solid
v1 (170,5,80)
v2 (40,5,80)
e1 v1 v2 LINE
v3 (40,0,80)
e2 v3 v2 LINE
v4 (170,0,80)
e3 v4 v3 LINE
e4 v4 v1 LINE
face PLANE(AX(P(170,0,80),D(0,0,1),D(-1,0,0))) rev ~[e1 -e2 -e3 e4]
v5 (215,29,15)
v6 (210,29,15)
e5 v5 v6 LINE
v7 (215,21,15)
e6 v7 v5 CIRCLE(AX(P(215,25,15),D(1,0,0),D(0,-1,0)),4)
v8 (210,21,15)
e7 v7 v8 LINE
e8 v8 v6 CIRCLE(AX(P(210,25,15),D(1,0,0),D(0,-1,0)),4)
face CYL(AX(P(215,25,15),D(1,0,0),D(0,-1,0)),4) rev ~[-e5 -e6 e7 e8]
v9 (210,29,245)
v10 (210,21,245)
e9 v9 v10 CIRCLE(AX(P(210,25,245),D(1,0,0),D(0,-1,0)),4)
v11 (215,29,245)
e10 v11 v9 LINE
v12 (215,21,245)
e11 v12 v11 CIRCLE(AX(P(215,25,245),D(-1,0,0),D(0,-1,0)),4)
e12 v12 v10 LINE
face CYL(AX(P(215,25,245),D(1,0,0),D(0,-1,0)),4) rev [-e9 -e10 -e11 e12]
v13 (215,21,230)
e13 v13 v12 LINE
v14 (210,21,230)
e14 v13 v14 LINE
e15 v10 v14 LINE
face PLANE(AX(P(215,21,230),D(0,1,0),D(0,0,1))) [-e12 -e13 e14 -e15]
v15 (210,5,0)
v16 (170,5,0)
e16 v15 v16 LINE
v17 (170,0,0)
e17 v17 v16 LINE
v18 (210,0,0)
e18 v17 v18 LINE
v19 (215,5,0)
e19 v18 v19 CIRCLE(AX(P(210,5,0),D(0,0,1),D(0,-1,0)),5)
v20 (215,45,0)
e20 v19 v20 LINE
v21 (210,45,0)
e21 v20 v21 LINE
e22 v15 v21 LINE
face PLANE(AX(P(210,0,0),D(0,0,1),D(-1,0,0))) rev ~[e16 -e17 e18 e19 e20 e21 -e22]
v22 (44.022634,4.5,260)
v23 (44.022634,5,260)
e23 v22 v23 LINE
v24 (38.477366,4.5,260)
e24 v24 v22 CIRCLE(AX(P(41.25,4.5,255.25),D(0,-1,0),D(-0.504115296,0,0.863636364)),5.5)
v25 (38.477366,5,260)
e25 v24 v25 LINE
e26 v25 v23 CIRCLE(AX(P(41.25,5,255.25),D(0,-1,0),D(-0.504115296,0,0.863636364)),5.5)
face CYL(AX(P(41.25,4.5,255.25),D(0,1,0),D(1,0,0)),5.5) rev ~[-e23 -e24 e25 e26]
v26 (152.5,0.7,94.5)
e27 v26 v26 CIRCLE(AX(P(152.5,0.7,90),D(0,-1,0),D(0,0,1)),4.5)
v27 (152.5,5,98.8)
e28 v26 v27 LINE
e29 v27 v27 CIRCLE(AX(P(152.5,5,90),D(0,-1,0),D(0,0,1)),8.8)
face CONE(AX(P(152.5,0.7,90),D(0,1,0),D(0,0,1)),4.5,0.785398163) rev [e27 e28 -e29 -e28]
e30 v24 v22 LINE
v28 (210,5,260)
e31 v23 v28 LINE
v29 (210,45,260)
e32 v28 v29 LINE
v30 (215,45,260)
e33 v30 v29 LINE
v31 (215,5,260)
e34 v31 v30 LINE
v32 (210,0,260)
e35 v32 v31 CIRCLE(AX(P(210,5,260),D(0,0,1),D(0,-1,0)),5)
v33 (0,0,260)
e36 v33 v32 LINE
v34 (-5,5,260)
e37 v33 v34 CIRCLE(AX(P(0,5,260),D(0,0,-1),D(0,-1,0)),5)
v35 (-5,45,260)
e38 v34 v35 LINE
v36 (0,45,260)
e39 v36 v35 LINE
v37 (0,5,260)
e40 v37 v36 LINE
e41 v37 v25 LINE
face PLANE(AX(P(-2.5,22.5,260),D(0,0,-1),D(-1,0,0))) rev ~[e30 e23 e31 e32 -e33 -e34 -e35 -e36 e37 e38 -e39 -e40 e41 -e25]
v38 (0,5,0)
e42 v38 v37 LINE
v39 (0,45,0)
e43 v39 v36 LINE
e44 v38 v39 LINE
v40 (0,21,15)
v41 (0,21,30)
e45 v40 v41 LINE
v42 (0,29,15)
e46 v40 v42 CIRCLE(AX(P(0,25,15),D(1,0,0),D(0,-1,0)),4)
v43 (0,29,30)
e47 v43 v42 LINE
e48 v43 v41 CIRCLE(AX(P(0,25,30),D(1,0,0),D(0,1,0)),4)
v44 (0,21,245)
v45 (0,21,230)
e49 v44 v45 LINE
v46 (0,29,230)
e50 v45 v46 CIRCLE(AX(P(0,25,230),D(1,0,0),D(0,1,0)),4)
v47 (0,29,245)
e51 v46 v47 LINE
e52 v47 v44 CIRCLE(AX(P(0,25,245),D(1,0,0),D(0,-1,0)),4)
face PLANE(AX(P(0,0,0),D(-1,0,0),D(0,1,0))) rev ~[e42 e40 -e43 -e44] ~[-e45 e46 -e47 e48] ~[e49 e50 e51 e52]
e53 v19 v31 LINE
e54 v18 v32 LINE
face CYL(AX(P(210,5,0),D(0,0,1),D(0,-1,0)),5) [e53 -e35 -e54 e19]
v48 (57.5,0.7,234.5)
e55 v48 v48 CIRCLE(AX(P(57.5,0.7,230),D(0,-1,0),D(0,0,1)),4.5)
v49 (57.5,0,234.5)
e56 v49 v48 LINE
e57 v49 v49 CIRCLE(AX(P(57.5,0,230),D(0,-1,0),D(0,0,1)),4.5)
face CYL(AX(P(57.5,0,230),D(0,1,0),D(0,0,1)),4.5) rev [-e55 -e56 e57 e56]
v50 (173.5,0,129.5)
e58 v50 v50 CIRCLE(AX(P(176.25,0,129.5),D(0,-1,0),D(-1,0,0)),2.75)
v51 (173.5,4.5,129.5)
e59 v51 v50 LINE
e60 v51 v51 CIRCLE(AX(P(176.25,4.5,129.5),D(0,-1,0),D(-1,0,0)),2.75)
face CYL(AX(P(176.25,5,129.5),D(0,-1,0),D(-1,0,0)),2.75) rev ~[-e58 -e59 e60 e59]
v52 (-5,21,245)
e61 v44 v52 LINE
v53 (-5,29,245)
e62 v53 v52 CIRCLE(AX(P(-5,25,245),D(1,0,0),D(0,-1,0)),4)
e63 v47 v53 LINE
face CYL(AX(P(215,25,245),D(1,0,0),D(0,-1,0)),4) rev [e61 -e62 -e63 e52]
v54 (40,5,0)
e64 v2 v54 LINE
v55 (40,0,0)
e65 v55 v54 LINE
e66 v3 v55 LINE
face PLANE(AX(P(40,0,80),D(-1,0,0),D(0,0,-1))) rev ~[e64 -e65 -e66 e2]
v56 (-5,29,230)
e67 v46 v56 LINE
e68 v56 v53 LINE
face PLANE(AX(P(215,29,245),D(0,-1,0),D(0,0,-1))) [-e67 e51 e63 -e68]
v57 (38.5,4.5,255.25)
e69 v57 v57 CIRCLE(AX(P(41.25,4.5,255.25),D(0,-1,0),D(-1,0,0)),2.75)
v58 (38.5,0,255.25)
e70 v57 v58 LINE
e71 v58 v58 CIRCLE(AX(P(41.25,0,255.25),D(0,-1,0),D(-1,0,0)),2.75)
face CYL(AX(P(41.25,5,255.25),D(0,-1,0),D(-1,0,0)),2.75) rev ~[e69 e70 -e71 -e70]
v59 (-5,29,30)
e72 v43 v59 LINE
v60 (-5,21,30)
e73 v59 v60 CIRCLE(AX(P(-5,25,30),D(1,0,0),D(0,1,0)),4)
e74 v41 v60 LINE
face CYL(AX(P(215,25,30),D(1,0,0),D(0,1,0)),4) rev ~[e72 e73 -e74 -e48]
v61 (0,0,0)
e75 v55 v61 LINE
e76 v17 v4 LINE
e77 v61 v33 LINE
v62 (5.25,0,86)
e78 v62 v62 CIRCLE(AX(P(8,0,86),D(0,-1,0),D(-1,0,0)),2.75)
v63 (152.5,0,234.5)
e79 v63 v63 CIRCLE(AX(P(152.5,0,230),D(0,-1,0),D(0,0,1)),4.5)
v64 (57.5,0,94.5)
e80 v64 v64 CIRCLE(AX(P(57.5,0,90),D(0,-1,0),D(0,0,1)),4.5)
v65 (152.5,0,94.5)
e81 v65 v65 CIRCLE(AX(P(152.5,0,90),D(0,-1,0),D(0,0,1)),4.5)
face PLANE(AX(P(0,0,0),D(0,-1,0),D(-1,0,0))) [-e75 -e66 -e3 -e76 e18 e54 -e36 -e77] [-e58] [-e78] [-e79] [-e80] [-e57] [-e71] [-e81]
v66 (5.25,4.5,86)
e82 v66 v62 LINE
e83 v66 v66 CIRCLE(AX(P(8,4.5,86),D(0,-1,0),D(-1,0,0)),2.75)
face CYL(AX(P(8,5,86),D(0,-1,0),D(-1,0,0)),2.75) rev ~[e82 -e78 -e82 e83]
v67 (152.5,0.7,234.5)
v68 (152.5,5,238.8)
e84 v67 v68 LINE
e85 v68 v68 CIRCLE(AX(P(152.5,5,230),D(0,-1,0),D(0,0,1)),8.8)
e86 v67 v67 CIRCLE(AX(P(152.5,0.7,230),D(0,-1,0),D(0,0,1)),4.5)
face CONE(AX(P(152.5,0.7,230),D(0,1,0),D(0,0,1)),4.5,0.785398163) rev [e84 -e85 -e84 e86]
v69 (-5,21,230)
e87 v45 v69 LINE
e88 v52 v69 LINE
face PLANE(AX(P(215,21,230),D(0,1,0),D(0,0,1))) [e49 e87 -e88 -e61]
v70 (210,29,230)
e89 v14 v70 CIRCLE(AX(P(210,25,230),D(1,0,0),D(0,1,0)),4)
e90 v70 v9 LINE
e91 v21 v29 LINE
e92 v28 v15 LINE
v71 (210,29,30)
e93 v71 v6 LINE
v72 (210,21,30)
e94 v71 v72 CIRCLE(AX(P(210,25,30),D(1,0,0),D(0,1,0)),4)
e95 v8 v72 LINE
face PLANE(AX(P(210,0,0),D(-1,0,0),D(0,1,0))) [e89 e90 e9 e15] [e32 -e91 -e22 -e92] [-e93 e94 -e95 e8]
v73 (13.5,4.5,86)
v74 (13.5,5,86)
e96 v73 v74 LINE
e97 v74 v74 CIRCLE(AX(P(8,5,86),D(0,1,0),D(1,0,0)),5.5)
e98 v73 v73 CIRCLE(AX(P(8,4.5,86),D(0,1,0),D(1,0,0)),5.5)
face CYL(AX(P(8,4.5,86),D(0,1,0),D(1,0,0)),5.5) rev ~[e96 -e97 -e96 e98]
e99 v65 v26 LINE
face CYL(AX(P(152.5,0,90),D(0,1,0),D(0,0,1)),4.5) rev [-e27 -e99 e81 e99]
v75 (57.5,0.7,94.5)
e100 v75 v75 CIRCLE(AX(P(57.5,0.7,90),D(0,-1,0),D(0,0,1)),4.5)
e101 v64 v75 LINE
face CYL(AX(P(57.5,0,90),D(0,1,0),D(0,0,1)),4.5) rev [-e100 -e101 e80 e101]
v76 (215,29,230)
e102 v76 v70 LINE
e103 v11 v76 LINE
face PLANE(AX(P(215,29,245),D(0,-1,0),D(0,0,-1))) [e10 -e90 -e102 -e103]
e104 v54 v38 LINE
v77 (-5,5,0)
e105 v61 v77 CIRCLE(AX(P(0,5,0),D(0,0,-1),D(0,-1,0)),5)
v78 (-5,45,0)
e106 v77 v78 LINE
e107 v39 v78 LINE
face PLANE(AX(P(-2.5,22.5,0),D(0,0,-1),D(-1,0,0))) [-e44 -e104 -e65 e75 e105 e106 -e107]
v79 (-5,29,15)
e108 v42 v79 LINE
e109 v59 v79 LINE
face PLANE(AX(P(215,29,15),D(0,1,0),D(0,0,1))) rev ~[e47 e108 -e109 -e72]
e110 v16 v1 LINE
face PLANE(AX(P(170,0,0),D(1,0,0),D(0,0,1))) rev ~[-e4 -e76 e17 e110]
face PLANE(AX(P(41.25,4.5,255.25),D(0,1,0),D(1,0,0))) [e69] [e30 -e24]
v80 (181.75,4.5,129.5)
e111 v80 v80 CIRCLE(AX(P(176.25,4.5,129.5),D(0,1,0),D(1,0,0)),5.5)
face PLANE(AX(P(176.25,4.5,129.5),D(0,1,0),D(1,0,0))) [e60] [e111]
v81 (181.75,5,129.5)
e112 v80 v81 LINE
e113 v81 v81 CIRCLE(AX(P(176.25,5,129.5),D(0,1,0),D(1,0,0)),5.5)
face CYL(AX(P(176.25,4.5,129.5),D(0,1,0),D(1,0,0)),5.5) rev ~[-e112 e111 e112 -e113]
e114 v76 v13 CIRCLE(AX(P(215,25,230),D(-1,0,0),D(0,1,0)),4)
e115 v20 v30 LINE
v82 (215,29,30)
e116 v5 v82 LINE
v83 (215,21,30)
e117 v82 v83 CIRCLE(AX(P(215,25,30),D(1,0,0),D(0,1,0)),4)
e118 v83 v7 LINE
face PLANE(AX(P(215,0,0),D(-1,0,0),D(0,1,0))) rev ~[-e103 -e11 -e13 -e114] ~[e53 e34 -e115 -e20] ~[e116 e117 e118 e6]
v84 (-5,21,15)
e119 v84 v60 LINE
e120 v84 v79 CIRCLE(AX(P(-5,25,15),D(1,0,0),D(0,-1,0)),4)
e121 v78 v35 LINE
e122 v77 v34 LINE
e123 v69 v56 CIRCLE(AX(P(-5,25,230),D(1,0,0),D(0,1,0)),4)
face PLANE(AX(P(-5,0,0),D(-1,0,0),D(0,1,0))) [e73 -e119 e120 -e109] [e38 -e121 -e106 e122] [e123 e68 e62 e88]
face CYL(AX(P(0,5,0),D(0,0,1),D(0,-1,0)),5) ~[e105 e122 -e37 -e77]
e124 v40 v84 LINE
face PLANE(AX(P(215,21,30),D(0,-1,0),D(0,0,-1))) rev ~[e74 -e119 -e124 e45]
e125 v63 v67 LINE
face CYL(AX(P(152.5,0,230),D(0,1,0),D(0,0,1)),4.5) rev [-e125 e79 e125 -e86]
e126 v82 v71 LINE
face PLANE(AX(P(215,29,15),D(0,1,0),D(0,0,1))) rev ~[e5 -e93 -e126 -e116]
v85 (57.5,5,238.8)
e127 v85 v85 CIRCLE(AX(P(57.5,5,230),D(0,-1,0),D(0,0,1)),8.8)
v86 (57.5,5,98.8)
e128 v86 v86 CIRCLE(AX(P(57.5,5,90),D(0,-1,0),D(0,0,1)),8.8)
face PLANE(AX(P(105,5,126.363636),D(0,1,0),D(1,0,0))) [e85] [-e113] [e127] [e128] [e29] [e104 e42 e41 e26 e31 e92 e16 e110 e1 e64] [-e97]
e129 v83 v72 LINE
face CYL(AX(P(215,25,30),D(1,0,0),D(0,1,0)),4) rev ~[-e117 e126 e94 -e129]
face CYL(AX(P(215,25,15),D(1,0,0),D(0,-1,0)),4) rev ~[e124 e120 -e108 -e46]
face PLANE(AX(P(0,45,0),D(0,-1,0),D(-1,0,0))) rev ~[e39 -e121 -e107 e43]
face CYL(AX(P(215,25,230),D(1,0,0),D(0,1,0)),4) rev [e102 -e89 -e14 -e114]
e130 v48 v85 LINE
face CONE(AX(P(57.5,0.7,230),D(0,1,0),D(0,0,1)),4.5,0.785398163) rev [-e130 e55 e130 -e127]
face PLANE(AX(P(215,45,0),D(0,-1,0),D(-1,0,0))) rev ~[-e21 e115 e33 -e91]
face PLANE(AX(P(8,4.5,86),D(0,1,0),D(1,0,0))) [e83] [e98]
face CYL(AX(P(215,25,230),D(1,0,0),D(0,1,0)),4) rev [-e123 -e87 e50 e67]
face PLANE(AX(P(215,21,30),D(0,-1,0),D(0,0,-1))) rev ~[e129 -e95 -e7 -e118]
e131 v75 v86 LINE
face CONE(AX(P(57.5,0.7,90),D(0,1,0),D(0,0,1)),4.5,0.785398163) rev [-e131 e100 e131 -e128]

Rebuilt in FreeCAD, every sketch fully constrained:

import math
import FreeCAD as App
import Part
import Sketcher
from FreeCAD import Vector
Q = App.Units.Quantity


def edges_at(feature, points):
    """Names of the edges that pass closest to the given points."""
    edges = feature.Shape.Edges
    near = lambda p: min(range(len(edges)), key=lambda i: edges[i].distToShape(Part.Vertex(*p))[0])
    return sorted({f"Edge{near(p) + 1}" for p in points})

doc = App.newDocument("Part")
body = doc.addObject("PartDesign::Body", "Body")

# Sketch on XZ plane
sketch1 = body.newObject("Sketcher::SketchObject", "Sketch")
sketch1.AttachmentSupport = (doc.getObject("XZ_Plane"), [""])
sketch1.MapMode = "FlatFace"
sketch1.addGeometry(Part.LineSegment(Vector(0, 0, 0), Vector(0, 260, 0)), False)
sketch1.addGeometry(Part.LineSegment(Vector(0, 260, 0), Vector(210, 260, 0)), False)
sketch1.addGeometry(Part.LineSegment(Vector(210, 260, 0), Vector(210, 0, 0)), False)
sketch1.addGeometry(Part.LineSegment(Vector(210, 0, 0), Vector(170, 0, 0)), False)
sketch1.addGeometry(Part.LineSegment(Vector(170, 0, 0), Vector(170, 80, 0)), False)
sketch1.addGeometry(Part.LineSegment(Vector(170, 80, 0), Vector(40, 80, 0)), False)
sketch1.addGeometry(Part.LineSegment(Vector(40, 80, 0), Vector(40, 0, 0)), False)
sketch1.addGeometry(Part.LineSegment(Vector(40, 0, 0), Vector(0, 0, 0)), False)
sketch1.addConstraint(Sketcher.Constraint("Coincident", 0, 2, 1, 1))
sketch1.addConstraint(Sketcher.Constraint("Coincident", 1, 2, 2, 1))
sketch1.addConstraint(Sketcher.Constraint("Coincident", 2, 2, 3, 1))
sketch1.addConstraint(Sketcher.Constraint("Coincident", 3, 2, 4, 1))
sketch1.addConstraint(Sketcher.Constraint("Coincident", 4, 2, 5, 1))
sketch1.addConstraint(Sketcher.Constraint("Coincident", 5, 2, 6, 1))
sketch1.addConstraint(Sketcher.Constraint("Coincident", 6, 2, 7, 1))
sketch1.addConstraint(Sketcher.Constraint("Coincident", 7, 2, 0, 1))
sketch1.addConstraint(Sketcher.Constraint("Vertical", 0))
sketch1.addConstraint(Sketcher.Constraint("Horizontal", 1))
sketch1.addConstraint(Sketcher.Constraint("Vertical", 2))
sketch1.addConstraint(Sketcher.Constraint("Horizontal", 3))
sketch1.addConstraint(Sketcher.Constraint("Vertical", 4))
sketch1.addConstraint(Sketcher.Constraint("Horizontal", 5))
sketch1.addConstraint(Sketcher.Constraint("Vertical", 6))
sketch1.addConstraint(Sketcher.Constraint("Horizontal", 7))
sketch1.addConstraint(Sketcher.Constraint("Coincident", 7, 2, -1, 1))
sketch1.addConstraint(Sketcher.Constraint("PointOnObject", 2, 2, -1))
sketch1.addConstraint(Sketcher.Constraint("Equal", 3, 7))
sketch1.addConstraint(Sketcher.Constraint("DistanceX", 1, 1, 1, 2, Q("210 mm")))
sketch1.addConstraint(Sketcher.Constraint("DistanceX", 3, 2, 3, 1, Q("40 mm")))
sketch1.addConstraint(Sketcher.Constraint("DistanceY", 0, 1, 0, 2, Q("260 mm")))
sketch1.addConstraint(Sketcher.Constraint("DistanceY", 4, 1, 4, 2, Q("80 mm")))
pad1 = body.newObject("PartDesign::Pad", "Pad")
pad1.Profile = sketch1
pad1.Length = 5
pad1.Reversed = True

# Sketch on YZ plane
sketch2 = body.newObject("Sketcher::SketchObject", "Sketch001")
sketch2.AttachmentSupport = (doc.getObject("YZ_Plane"), [""])
sketch2.MapMode = "FlatFace"
sketch2.AttachmentOffset = App.Placement(Vector(0, 0, 57.5), App.Rotation())
sketch2.addGeometry(Part.LineSegment(Vector(0, 230, 0), Vector(5, 230, 0)), False)
sketch2.addGeometry(Part.LineSegment(Vector(5, 230, 0), Vector(5, 238.8, 0)), False)
sketch2.addGeometry(Part.LineSegment(Vector(5, 238.8, 0), Vector(0.7, 234.5, 0)), False)
sketch2.addGeometry(Part.LineSegment(Vector(0.7, 234.5, 0), Vector(0, 234.5, 0)), False)
sketch2.addGeometry(Part.LineSegment(Vector(0, 234.5, 0), Vector(0, 230, 0)), False)
sketch2.addGeometry(Part.LineSegment(Vector(5, 230, 0), Vector(0, 230, 0)), True)  # axis
sketch2.addConstraint(Sketcher.Constraint("Coincident", 0, 2, 1, 1))
sketch2.addConstraint(Sketcher.Constraint("Coincident", 1, 2, 2, 1))
sketch2.addConstraint(Sketcher.Constraint("Coincident", 2, 2, 3, 1))
sketch2.addConstraint(Sketcher.Constraint("Coincident", 3, 2, 4, 1))
sketch2.addConstraint(Sketcher.Constraint("Coincident", 4, 2, 0, 1))
sketch2.addConstraint(Sketcher.Constraint("Horizontal", 0))
sketch2.addConstraint(Sketcher.Constraint("Vertical", 1))
sketch2.addConstraint(Sketcher.Constraint("Horizontal", 3))
sketch2.addConstraint(Sketcher.Constraint("Vertical", 4))
sketch2.addConstraint(Sketcher.Constraint("Horizontal", 5))
sketch2.addConstraint(Sketcher.Constraint("Coincident", 5, 1, 0, 2))
sketch2.addConstraint(Sketcher.Constraint("PointOnObject", 3, 2, -2))
sketch2.addConstraint(Sketcher.Constraint("PointOnObject", 5, 2, -2))
sketch2.addConstraint(Sketcher.Constraint("DistanceX", 0, 1, 0, 2, Q("5 mm")))
sketch2.addConstraint(Sketcher.Constraint("Angle", 2, Q("-135 deg")))
sketch2.addConstraint(Sketcher.Constraint("DistanceX", 3, 2, 3, 1, Q("0.7 mm")))
sketch2.addConstraint(Sketcher.Constraint("DistanceY", 1, 1, 1, 2, Q("8.8 mm")))
sketch2.addConstraint(Sketcher.Constraint("DistanceY", -1, 1, 0, 2, Q("230 mm")))
groove = body.newObject("PartDesign::Groove", "Groove")
groove.Profile = sketch2
groove.ReferenceAxis = (sketch2, ["Axis0"])
groove.Angle = 360
doc.recompute()

linearpattern = body.newObject("PartDesign::LinearPattern", "LinearPattern")
linearpattern.Originals = [groove]
linearpattern.Direction = (doc.getObject("Z_Axis"), [""])
linearpattern.Mode = "offset"
linearpattern.Offset = 140
linearpattern.Occurrences = 2
linearpattern.Reversed = True
body.Tip = linearpattern
doc.recompute()

datumline = body.newObject("PartDesign::Line", "DatumLine")
datumline.Placement = App.Placement(Vector(0, 0, 0), App.Rotation(Vector(0, 0, 1), Vector(0.561501418, 0, -0.827475774)))
linearpattern2 = body.newObject("PartDesign::LinearPattern", "LinearPattern001")
linearpattern2.Originals = [groove]
linearpattern2.Direction = (datumline, [""])
linearpattern2.Mode = "offset"
linearpattern2.Offset = 169.189243
linearpattern2.Occurrences = 2
body.Tip = linearpattern2
doc.recompute()

linearpattern3 = body.newObject("PartDesign::LinearPattern", "LinearPattern002")
linearpattern3.Originals = [groove]
linearpattern3.Direction = (doc.getObject("X_Axis"), [""])
linearpattern3.Mode = "offset"
linearpattern3.Offset = 95
linearpattern3.Occurrences = 2
body.Tip = linearpattern3

# Sketch on XY plane
sketch3 = body.newObject("Sketcher::SketchObject", "Sketch002")
sketch3.AttachmentSupport = (doc.getObject("XY_Plane"), [""])
sketch3.MapMode = "FlatFace"
sketch3.addGeometry(Part.LineSegment(Vector(0, 45, 0), Vector(0, 0, 0)), False)
sketch3.addGeometry(Part.LineSegment(Vector(0, 0, 0), Vector(-5, 0, 0)), False)
sketch3.addGeometry(Part.LineSegment(Vector(-5, 0, 0), Vector(-5, 45, 0)), False)
sketch3.addGeometry(Part.LineSegment(Vector(-5, 45, 0), Vector(0, 45, 0)), False)
sketch3.addGeometry(Part.LineSegment(Vector(215, 45, 0), Vector(215, 0, 0)), False)
sketch3.addGeometry(Part.LineSegment(Vector(215, 0, 0), Vector(210, 0, 0)), False)
sketch3.addGeometry(Part.LineSegment(Vector(210, 0, 0), Vector(210, 45, 0)), False)
sketch3.addGeometry(Part.LineSegment(Vector(210, 45, 0), Vector(215, 45, 0)), False)
sketch3.addConstraint(Sketcher.Constraint("Coincident", 0, 2, 1, 1))
sketch3.addConstraint(Sketcher.Constraint("Coincident", 1, 2, 2, 1))
sketch3.addConstraint(Sketcher.Constraint("Coincident", 2, 2, 3, 1))
sketch3.addConstraint(Sketcher.Constraint("Coincident", 3, 2, 0, 1))
sketch3.addConstraint(Sketcher.Constraint("Coincident", 4, 2, 5, 1))
sketch3.addConstraint(Sketcher.Constraint("Coincident", 5, 2, 6, 1))
sketch3.addConstraint(Sketcher.Constraint("Coincident", 6, 2, 7, 1))
sketch3.addConstraint(Sketcher.Constraint("Coincident", 7, 2, 4, 1))
sketch3.addConstraint(Sketcher.Constraint("Vertical", 0))
sketch3.addConstraint(Sketcher.Constraint("Horizontal", 1))
sketch3.addConstraint(Sketcher.Constraint("Vertical", 2))
sketch3.addConstraint(Sketcher.Constraint("Horizontal", 3))
sketch3.addConstraint(Sketcher.Constraint("Vertical", 4))
sketch3.addConstraint(Sketcher.Constraint("Horizontal", 5))
sketch3.addConstraint(Sketcher.Constraint("Vertical", 6))
sketch3.addConstraint(Sketcher.Constraint("Horizontal", 7))
sketch3.addConstraint(Sketcher.Constraint("Coincident", 0, 2, -1, 1))
sketch3.addConstraint(Sketcher.Constraint("PointOnObject", 4, 2, -1))
sketch3.addConstraint(Sketcher.Constraint("Horizontal", 3, 2, 6, 2))
sketch3.addConstraint(Sketcher.Constraint("Equal", 3, 5))
sketch3.addConstraint(Sketcher.Constraint("DistanceX", 1, 2, 1, 1, Q("5 mm")))
sketch3.addConstraint(Sketcher.Constraint("DistanceY", 0, 2, 0, 1, Q("45 mm")))
sketch3.addConstraint(Sketcher.Constraint("DistanceX", -1, 1, 4, 2, Q("215 mm")))
pad2 = body.newObject("PartDesign::Pad", "Pad001")
pad2.Profile = sketch3
pad2.Length = 260
doc.recompute()

fillet = body.newObject("PartDesign::Fillet", "Fillet")
fillet.Base = (pad2, edges_at(pad2, [(-5, 0, 130), (215, 0, 130)]))
fillet.Radius = 5

# Sketch on YZ plane
sketch4 = body.newObject("Sketcher::SketchObject", "Sketch003")
sketch4.AttachmentSupport = (doc.getObject("YZ_Plane"), [""])
sketch4.MapMode = "FlatFace"
sketch4.AttachmentOffset = App.Placement(Vector(0, 0, 215), App.Rotation())
sketch4.addGeometry(Part.LineSegment(Vector(29, 15, 0), Vector(29, 30, 0)), False)
sketch4.addGeometry(Part.ArcOfCircle(Part.Circle(Vector(25, 30, 0), Vector(0, 0, 1), 4), math.radians(0), math.radians(180)), False)
sketch4.addGeometry(Part.LineSegment(Vector(21, 30, 0), Vector(21, 15, 0)), False)
sketch4.addGeometry(Part.ArcOfCircle(Part.Circle(Vector(25, 15, 0), Vector(0, 0, 1), 4), math.radians(180), math.radians(360)), False)
sketch4.addGeometry(Part.LineSegment(Vector(21, 245, 0), Vector(21, 230, 0)), False)
sketch4.addGeometry(Part.ArcOfCircle(Part.Circle(Vector(25, 230, 0), Vector(0, 0, 1), 4), math.radians(180), math.radians(360)), False)
sketch4.addGeometry(Part.LineSegment(Vector(29, 230, 0), Vector(29, 245, 0)), False)
sketch4.addGeometry(Part.ArcOfCircle(Part.Circle(Vector(25, 245, 0), Vector(0, 0, 1), 4), math.radians(0), math.radians(180)), False)
sketch4.addConstraint(Sketcher.Constraint("Tangent", 0, 2, 1, 1))
sketch4.addConstraint(Sketcher.Constraint("Tangent", 1, 2, 2, 1))
sketch4.addConstraint(Sketcher.Constraint("Tangent", 2, 2, 3, 1))
sketch4.addConstraint(Sketcher.Constraint("Tangent", 3, 2, 0, 1))
sketch4.addConstraint(Sketcher.Constraint("Tangent", 4, 2, 5, 1))
sketch4.addConstraint(Sketcher.Constraint("Tangent", 5, 2, 6, 1))
sketch4.addConstraint(Sketcher.Constraint("Tangent", 6, 2, 7, 1))
sketch4.addConstraint(Sketcher.Constraint("Tangent", 7, 2, 4, 1))
sketch4.addConstraint(Sketcher.Constraint("Vertical", 0))
sketch4.addConstraint(Sketcher.Constraint("Vertical", 2))
sketch4.addConstraint(Sketcher.Constraint("Vertical", 4))
sketch4.addConstraint(Sketcher.Constraint("Vertical", 6))
sketch4.addConstraint(Sketcher.Constraint("Equal", 3, 5))
sketch4.addConstraint(Sketcher.Constraint("Vertical", 3, 3, 5, 3))
sketch4.addConstraint(Sketcher.Constraint("Equal", 2, 4))
sketch4.addConstraint(Sketcher.Constraint("Radius", 1, Q("4 mm")))
sketch4.addConstraint(Sketcher.Constraint("DistanceY", 0, 1, 0, 2, Q("15 mm")))
sketch4.addConstraint(Sketcher.Constraint("DistanceX", -1, 1, 1, 3, Q("25 mm")))
sketch4.addConstraint(Sketcher.Constraint("DistanceY", -1, 1, 1, 3, Q("30 mm")))
sketch4.addConstraint(Sketcher.Constraint("DistanceY", -1, 1, 5, 3, Q("230 mm")))
pocket1 = body.newObject("PartDesign::Pocket", "Pocket")
pocket1.Profile = sketch4
pocket1.Type = "ThroughAll"

# Sketch on XZ plane
sketch5 = body.newObject("Sketcher::SketchObject", "Sketch004")
sketch5.AttachmentSupport = (doc.getObject("XZ_Plane"), [""])
sketch5.MapMode = "FlatFace"
sketch5.AttachmentOffset = App.Placement(Vector(0, 0, -5), App.Rotation())
sketch5.addGeometry(Part.Circle(Vector(176.2, 129.5, 0), Vector(0, 0, 1), 2.8), False)
sketch5.addGeometry(Part.Circle(Vector(8, 86, 0), Vector(0, 0, 1), 2.8), False)
sketch5.addGeometry(Part.Circle(Vector(41.2, 255.2, 0), Vector(0, 0, 1), 2.8), False)
sketch5.addConstraint(Sketcher.Constraint("Equal", 0, 1))
sketch5.addConstraint(Sketcher.Constraint("Equal", 1, 2))
sketch5.addConstraint(Sketcher.Constraint("Diameter", 0, Q("5.5 mm")))
sketch5.addConstraint(Sketcher.Constraint("DistanceX", -1, 1, 1, 3, Q("8 mm")))
sketch5.addConstraint(Sketcher.Constraint("DistanceY", -1, 1, 1, 3, Q("86 mm")))
sketch5.addConstraint(Sketcher.Constraint("DistanceX", 2, 3, 0, 3, Q("135 mm")))
sketch5.addConstraint(Sketcher.Constraint("DistanceY", -1, 1, 0, 3, Q("129.5 mm")))
sketch5.addConstraint(Sketcher.Constraint("DistanceX", -1, 1, 0, 3, Q("176.25 mm")))
sketch5.addConstraint(Sketcher.Constraint("DistanceY", -1, 1, 2, 3, Q("255.25 mm")))
doc.recompute()
hole = body.newObject("PartDesign::Hole", "Hole")
hole.Profile = sketch5
hole.ThreadType = "None"
hole.Diameter = 5.5
hole.DepthType = "ThroughAll"
hole.HoleCutType = "Counterbore"
hole.HoleCutDiameter = 11
hole.HoleCutDepth = 0.5
hole.Reversed = True

doc.recompute()
